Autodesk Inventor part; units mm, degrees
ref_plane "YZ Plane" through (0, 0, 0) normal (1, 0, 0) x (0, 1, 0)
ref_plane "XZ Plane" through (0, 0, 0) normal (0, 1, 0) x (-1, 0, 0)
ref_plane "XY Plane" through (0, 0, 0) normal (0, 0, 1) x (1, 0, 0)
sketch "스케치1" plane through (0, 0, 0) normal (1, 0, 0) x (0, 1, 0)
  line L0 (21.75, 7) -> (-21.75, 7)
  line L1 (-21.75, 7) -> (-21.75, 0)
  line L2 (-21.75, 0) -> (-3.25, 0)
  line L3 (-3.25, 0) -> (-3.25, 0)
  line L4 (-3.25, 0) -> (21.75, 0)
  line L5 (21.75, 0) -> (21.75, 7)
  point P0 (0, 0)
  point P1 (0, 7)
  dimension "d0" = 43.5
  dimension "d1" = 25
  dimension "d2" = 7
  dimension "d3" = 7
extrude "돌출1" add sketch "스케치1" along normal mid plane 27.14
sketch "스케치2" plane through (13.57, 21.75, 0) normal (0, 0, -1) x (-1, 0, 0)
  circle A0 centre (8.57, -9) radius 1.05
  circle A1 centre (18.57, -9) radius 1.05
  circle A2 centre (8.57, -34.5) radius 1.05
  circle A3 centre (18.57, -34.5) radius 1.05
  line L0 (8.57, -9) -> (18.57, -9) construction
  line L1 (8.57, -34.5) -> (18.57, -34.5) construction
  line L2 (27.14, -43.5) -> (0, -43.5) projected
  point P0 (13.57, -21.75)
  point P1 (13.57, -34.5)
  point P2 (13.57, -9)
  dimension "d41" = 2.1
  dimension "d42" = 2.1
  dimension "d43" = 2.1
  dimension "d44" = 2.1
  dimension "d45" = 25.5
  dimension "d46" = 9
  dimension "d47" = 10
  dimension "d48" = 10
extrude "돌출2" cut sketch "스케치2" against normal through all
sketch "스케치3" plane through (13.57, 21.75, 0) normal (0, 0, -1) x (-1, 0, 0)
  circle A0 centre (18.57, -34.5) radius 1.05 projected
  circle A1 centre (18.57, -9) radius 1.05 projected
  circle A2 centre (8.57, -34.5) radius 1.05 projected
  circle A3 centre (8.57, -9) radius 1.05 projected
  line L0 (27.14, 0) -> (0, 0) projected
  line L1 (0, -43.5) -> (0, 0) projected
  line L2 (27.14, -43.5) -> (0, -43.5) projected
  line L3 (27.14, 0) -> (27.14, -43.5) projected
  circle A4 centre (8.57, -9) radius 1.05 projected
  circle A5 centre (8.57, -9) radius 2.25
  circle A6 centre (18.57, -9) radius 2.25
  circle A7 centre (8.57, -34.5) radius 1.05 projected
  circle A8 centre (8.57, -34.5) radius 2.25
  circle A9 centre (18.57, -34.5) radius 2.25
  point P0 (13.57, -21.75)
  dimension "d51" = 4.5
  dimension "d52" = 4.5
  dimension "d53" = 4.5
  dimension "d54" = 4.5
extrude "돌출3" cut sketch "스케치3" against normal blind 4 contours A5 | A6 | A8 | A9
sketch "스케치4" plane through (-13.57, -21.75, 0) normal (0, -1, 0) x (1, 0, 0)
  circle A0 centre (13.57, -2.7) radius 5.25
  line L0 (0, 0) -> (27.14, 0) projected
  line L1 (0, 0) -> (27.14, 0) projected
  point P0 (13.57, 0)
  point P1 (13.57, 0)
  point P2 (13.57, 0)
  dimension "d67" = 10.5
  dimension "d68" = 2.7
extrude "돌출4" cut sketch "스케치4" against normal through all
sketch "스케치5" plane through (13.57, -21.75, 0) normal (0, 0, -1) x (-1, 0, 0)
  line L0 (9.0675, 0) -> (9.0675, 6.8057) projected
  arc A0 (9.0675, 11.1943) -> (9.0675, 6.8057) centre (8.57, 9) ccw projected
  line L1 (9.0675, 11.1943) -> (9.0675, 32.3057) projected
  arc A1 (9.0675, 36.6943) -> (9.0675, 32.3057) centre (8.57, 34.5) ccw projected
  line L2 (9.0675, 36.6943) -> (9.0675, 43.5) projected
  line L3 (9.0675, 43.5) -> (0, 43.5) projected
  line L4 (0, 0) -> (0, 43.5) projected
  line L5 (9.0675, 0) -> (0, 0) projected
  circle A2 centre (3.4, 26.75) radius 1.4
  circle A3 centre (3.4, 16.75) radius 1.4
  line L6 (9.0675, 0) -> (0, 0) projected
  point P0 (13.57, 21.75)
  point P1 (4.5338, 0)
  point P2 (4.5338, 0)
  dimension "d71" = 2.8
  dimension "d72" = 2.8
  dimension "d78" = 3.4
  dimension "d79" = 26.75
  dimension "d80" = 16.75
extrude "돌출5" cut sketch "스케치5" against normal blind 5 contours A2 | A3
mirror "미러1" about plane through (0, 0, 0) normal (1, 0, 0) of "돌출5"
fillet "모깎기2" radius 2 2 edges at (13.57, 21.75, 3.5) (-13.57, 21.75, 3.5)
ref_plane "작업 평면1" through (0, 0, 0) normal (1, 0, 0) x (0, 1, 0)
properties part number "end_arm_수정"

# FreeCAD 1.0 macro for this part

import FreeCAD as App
import Part
import Sketcher
from FreeCAD import Vector


def edges_at(feature, points):
    """Names of the edges that pass closest to the given points."""
    edges = feature.Shape.Edges
    near = lambda p: min(range(len(edges)), key=lambda i: edges[i].distToShape(Part.Vertex(*p))[0])
    return sorted({f"Edge{near(p) + 1}" for p in points})

doc = App.newDocument("Part")
body = doc.addObject("PartDesign::Body", "Body")

sketch1 = body.newObject("Sketcher::SketchObject", "Sketch")
sketch1.AttachmentSupport = (doc.getObject("YZ_Plane"), [""])
sketch1.MapMode = "FlatFace"
sketch1.addGeometry([
    Part.LineSegment(Vector(22, 0, 0), Vector(22, 7, 0)),
    Part.LineSegment(Vector(22, 7, 0), Vector(-22, 7, 0)),
    Part.LineSegment(Vector(-22, 7, 0), Vector(-22, 0, 0)),
    Part.LineSegment(Vector(-22, 0, 0), Vector(22, 0, 0)),
], False)
sketch1.addConstraint([
    Sketcher.Constraint("Coincident", 0, 2, 1, 1),
    Sketcher.Constraint("Coincident", 1, 2, 2, 1),
    Sketcher.Constraint("Coincident", 2, 2, 3, 1),
    Sketcher.Constraint("Coincident", 3, 2, 0, 1),
    Sketcher.Constraint("Vertical", 0),
    Sketcher.Constraint("Horizontal", 1),
    Sketcher.Constraint("Vertical", 2),
    Sketcher.Constraint("Horizontal", 3),
    Sketcher.Constraint("Symmetric", 2, 2, 3, 2, -1, 1),
    Sketcher.Constraint("DistanceY", 0, 1, 0, 2, 7.0),
    Sketcher.Constraint("DistanceX", 1, 2, 1, 1, 43.5),
])
pad1 = body.newObject("PartDesign::Pad", "Pad")
pad1.Profile = sketch1
pad1.Length = 27.14
pad1.Midplane = True

sketch2 = body.newObject("Sketcher::SketchObject", "Sketch001")
sketch2.AttachmentSupport = (doc.getObject("XY_Plane"), [""])
sketch2.MapMode = "FlatFace"
sketch2.addGeometry([
    Part.Circle(Vector(5, 12.8, 0), Vector(0, 0, 1), 1.1),
    Part.Circle(Vector(-5, 12.8, 0), Vector(0, 0, 1), 1.1),
    Part.Circle(Vector(5, -12.8, 0), Vector(0, 0, 1), 1.1),
    Part.Circle(Vector(-5, -12.8, 0), Vector(0, 0, 1), 1.1),
], False)
sketch2.addConstraint([
    Sketcher.Constraint("Equal", 0, 1),
    Sketcher.Constraint("Equal", 1, 2),
    Sketcher.Constraint("Equal", 2, 3),
    Sketcher.Constraint("Symmetric", 1, 3, 2, 3, -1, 1),
    Sketcher.Constraint("Symmetric", 0, 3, 3, 3, -1, 1),
    Sketcher.Constraint("Symmetric", 0, 3, 1, 3, -2),
    Sketcher.Constraint("Diameter", 0, 2.1),
    Sketcher.Constraint("DistanceX", 1, 3, 0, 3, 10.0),
    Sketcher.Constraint("DistanceY", 2, 3, 0, 3, 25.5),
])
pocket1 = body.newObject("PartDesign::Pocket", "Pocket")
pocket1.Profile = sketch2
pocket1.Type = "ThroughAll"
pocket1.Reversed = True

sketch3 = body.newObject("Sketcher::SketchObject", "Sketch002")
sketch3.AttachmentSupport = (doc.getObject("XY_Plane"), [""])
sketch3.MapMode = "FlatFace"
sketch3.addGeometry([
    Part.Circle(Vector(5, 12.8, 0), Vector(0, 0, 1), 2.2),
    Part.Circle(Vector(5, 12.8, 0), Vector(0, 0, 1), 1.1),
    Part.Circle(Vector(-5, 12.8, 0), Vector(0, 0, 1), 2.2),
    Part.Circle(Vector(-5, 12.8, 0), Vector(0, 0, 1), 1.1),
    Part.Circle(Vector(5, -12.8, 0), Vector(0, 0, 1), 2.2),
    Part.Circle(Vector(5, -12.8, 0), Vector(0, 0, 1), 1.1),
    Part.Circle(Vector(-5, -12.8, 0), Vector(0, 0, 1), 2.2),
    Part.Circle(Vector(-5, -12.8, 0), Vector(0, 0, 1), 1.1),
], False)
sketch3.addConstraint([
    Sketcher.Constraint("Coincident", 1, 3, 0, 3),
    Sketcher.Constraint("Coincident", 3, 3, 2, 3),
    Sketcher.Constraint("Coincident", 5, 3, 4, 3),
    Sketcher.Constraint("Coincident", 7, 3, 6, 3),
    Sketcher.Constraint("Equal", 0, 2),
    Sketcher.Constraint("Equal", 1, 3),
    Sketcher.Constraint("Equal", 2, 4),
    Sketcher.Constraint("Equal", 3, 5),
    Sketcher.Constraint("Equal", 4, 6),
    Sketcher.Constraint("Equal", 5, 7),
    Sketcher.Constraint("Symmetric", 2, 3, 4, 3, -1, 1),
    Sketcher.Constraint("Symmetric", 0, 3, 6, 3, -1, 1),
    Sketcher.Constraint("Symmetric", 0, 3, 2, 3, -2),
    Sketcher.Constraint("Diameter", 0, 4.5),
    Sketcher.Constraint("Diameter", 1, 2.1),
    Sketcher.Constraint("DistanceX", -1, 1, 0, 3, 5.0),
    Sketcher.Constraint("DistanceY", 4, 3, 0, 3, 25.5),
])
pocket2 = body.newObject("PartDesign::Pocket", "Pocket001")
pocket2.Profile = sketch3
pocket2.Length = 4
pocket2.Reversed = True

sketch4 = body.newObject("Sketcher::SketchObject", "Sketch003")
sketch4.AttachmentSupport = (doc.getObject("XZ_Plane"), [""])
sketch4.MapMode = "FlatFace"
sketch4.AttachmentOffset = App.Placement(Vector(0, 0, 21.75), App.Rotation())
sketch4.addGeometry(Part.Circle(Vector(0, -3, 0), Vector(0, 0, 1), 5), False)
sketch4.addConstraint([
    Sketcher.Constraint("PointOnObject", 0, 3, -2),
    Sketcher.Constraint("Diameter", 0, 10.5),
    Sketcher.Constraint("DistanceY", 0, 3, -1, 1, 2.7),
])
pocket3 = body.newObject("PartDesign::Pocket", "Pocket002")
pocket3.Profile = sketch4
pocket3.Type = "ThroughAll"

sketch5 = body.newObject("Sketcher::SketchObject", "Sketch004")
sketch5.AttachmentSupport = (doc.getObject("XY_Plane"), [""])
sketch5.MapMode = "FlatFace"
sketch5.addGeometry([
    Part.Circle(Vector(10.2, 5, 0), Vector(0, 0, 1), 1.4),
    Part.Circle(Vector(10.2, -5, 0), Vector(0, 0, 1), 1.4),
], False)
sketch5.addConstraint([
    Sketcher.Constraint("Equal", 0, 1),
    Sketcher.Constraint("Symmetric", 0, 3, 1, 3, -1),
    Sketcher.Constraint("Diameter", 0, 2.8),
    Sketcher.Constraint("DistanceY", -1, 1, 0, 3, 5.0),
    Sketcher.Constraint("DistanceX", -1, 1, 0, 3, 10.17),
])
pocket4 = body.newObject("PartDesign::Pocket", "Pocket003")
pocket4.Profile = sketch5
pocket4.Length = 5
pocket4.Reversed = True
doc.recompute()

mirrored = body.newObject("PartDesign::Mirrored", "Mirrored")
mirrored.Originals = [pocket4]
mirrored.MirrorPlane = (doc.getObject("YZ_Plane"), [""])
body.Tip = mirrored
doc.recompute()

fillet = body.newObject("PartDesign::Fillet", "Fillet")
fillet.Base = (mirrored, edges_at(mirrored, [(13.57, 21.75, 3.5), (-13.57, 21.75, 3.5)]))
fillet.Radius = 2

doc.recompute()
